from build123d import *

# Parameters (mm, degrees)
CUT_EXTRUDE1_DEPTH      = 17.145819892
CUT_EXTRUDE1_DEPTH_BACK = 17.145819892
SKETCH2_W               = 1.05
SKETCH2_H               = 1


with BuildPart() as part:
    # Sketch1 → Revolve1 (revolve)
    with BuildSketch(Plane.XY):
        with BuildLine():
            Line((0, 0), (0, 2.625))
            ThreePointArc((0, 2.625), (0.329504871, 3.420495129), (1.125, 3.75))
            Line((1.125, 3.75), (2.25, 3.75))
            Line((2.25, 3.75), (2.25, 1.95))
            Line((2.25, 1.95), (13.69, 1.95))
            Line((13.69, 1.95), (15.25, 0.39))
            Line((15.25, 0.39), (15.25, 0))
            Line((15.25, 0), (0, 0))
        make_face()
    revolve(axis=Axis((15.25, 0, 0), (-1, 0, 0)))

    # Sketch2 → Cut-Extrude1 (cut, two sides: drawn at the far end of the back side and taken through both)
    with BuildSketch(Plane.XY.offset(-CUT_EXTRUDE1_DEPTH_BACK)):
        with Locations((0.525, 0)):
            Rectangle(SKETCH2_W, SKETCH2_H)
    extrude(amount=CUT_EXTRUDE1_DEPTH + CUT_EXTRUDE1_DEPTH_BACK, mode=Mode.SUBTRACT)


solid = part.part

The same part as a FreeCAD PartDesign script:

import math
import FreeCAD as App
import Part
import Sketcher

V = App.Vector
Q = App.Units.Quantity

doc = App.newDocument("Part")
body = doc.addObject("PartDesign::Body", "Body")

# Sketch on XY plane
sketch1 = body.newObject("Sketcher::SketchObject", "Sketch")
sketch1.AttachmentSupport = (doc.getObject("XY_Plane"), [""])
sketch1.MapMode = "FlatFace"
sketch1.addGeometry([
    Part.LineSegment(V(0, 2.62, 0), V(0, 0, 0)),  # 0
    Part.LineSegment(V(0, 0, 0), V(15.25, 0, 0)),  # 1
    Part.LineSegment(V(15.25, 0, 0), V(15.25, 0.39, 0)),  # 2
    Part.LineSegment(V(15.25, 0.39, 0), V(13.69, 1.95, 0)),  # 3
    Part.LineSegment(V(13.69, 1.95, 0), V(2.25, 1.95, 0)),  # 4
    Part.LineSegment(V(2.25, 1.95, 0), V(2.25, 3.75, 0)),  # 5
    Part.LineSegment(V(2.25, 3.75, 0), V(1.12, 3.75, 0)),  # 6
    Part.ArcOfCircle(Part.Circle(V(1.12, 2.63, 0), V(0, 0, 1), 1.12), math.radians(90), math.radians(180)),  # 7
], False)
sketch1.addConstraint([
    Sketcher.Constraint("Coincident", 0, 2, 1, 1),
    Sketcher.Constraint("Coincident", 1, 2, 2, 1),
    Sketcher.Constraint("Coincident", 2, 2, 3, 1),
    Sketcher.Constraint("Coincident", 3, 2, 4, 1),
    Sketcher.Constraint("Coincident", 4, 2, 5, 1),
    Sketcher.Constraint("Coincident", 5, 2, 6, 1),
    Sketcher.Constraint("Tangent", 6, 2, 7, 1),
    Sketcher.Constraint("Tangent", 7, 2, 0, 1),
    Sketcher.Constraint("Vertical", 0),
    Sketcher.Constraint("Horizontal", 1),
    Sketcher.Constraint("Vertical", 2),
    Sketcher.Constraint("Horizontal", 4),
    Sketcher.Constraint("Vertical", 5),
    Sketcher.Constraint("Horizontal", 6),
    Sketcher.Constraint("Coincident", 0, 2, -1, 1),
    Sketcher.Constraint("Angle", 3, Q("135 deg")),
    Sketcher.Constraint("DistanceY", 5, 1, 5, 2, Q("1.8 mm")),
    Sketcher.Constraint("Radius", 7, Q("1.125 mm")),
    Sketcher.Constraint("DistanceX", 4, 2, 2, 2, Q("13 mm")),
    Sketcher.Constraint("DistanceX", 1, 1, 1, 2, Q("15.25 mm")),
    Sketcher.Constraint("DistanceX", 4, 2, 4, 1, Q("11.44 mm")),
    Sketcher.Constraint("DistanceY", 2, 1, 2, 2, Q("0.39 mm")),
])
revolution = body.newObject("PartDesign::Revolution", "Revolution")
revolution.Profile = sketch1
revolution.ReferenceAxis = (sketch1, ["H_Axis"])
revolution.Angle = 360

# Sketch on XY plane
sketch2 = body.newObject("Sketcher::SketchObject", "Sketch001")
sketch2.AttachmentSupport = (doc.getObject("XY_Plane"), [""])
sketch2.MapMode = "FlatFace"
sketch2.addGeometry([
    Part.LineSegment(V(0, 0.5, 0), V(0, -0.5, 0)),
    Part.LineSegment(V(0, -0.5, 0), V(1.1, -0.5, 0)),
    Part.LineSegment(V(1.1, -0.5, 0), V(1.1, 0.5, 0)),
    Part.LineSegment(V(1.1, 0.5, 0), V(0, 0.5, 0)),
], False)
sketch2.addConstraint([
    Sketcher.Constraint("Coincident", 0, 2, 1, 1),
    Sketcher.Constraint("Coincident", 1, 2, 2, 1),
    Sketcher.Constraint("Coincident", 2, 2, 3, 1),
    Sketcher.Constraint("Coincident", 3, 2, 0, 1),
    Sketcher.Constraint("Vertical", 0),
    Sketcher.Constraint("Horizontal", 1),
    Sketcher.Constraint("Vertical", 2),
    Sketcher.Constraint("Horizontal", 3),
    Sketcher.Constraint("Symmetric", 0, 2, 3, 2, -1, 1),
    Sketcher.Constraint("DistanceY", 0, 2, 0, 1, Q("1 mm")),
    Sketcher.Constraint("DistanceX", 1, 1, 1, 2, Q("1.05 mm")),
])
pocket1 = body.newObject("PartDesign::Pocket", "Pocket")
pocket1.Profile = sketch2
pocket1.Type = "ThroughAll"
pocket1.Midplane = True

doc.recompute()
